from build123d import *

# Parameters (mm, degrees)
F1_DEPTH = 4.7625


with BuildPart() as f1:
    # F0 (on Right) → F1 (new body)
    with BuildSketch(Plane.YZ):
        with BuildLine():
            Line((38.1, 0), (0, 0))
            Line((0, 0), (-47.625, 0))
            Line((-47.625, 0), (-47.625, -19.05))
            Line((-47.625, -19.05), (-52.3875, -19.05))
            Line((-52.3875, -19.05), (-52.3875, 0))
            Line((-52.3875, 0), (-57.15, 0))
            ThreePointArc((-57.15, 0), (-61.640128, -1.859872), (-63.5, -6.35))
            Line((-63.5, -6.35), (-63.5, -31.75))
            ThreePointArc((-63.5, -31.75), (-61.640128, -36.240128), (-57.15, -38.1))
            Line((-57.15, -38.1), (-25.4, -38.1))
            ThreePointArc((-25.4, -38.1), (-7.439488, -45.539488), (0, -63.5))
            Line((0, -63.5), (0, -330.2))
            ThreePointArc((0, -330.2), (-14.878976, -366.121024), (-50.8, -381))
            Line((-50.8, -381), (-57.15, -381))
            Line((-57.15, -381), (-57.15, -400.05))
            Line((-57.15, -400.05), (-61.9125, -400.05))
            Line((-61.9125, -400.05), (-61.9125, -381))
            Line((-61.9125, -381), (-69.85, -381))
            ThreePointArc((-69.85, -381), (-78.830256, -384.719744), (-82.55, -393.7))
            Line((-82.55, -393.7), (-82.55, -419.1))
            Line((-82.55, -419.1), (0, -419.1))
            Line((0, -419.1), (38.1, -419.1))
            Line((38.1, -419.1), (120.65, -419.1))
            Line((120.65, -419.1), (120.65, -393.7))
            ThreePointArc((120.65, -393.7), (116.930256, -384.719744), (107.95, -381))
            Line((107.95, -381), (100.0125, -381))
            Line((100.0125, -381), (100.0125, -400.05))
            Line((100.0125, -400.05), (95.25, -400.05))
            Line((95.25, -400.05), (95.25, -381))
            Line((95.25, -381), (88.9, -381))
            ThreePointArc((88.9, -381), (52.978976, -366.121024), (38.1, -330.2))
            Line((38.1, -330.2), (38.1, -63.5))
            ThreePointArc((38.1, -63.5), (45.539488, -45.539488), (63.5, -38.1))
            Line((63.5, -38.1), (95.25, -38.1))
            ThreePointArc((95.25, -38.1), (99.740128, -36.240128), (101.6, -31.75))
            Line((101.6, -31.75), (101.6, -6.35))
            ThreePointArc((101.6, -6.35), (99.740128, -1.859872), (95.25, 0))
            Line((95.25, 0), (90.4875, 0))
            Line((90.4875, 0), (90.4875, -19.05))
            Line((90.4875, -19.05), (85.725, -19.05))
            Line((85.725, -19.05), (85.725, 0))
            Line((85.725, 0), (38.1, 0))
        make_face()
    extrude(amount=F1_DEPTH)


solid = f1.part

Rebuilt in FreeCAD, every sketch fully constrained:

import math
import FreeCAD as App
import Part
import Sketcher
from FreeCAD import Vector
Q = App.Units.Quantity

doc = App.newDocument("Part")
body = doc.addObject("PartDesign::Body", "Body")

sketch1 = body.newObject("Sketcher::SketchObject", "Sketch")
sketch1.AttachmentSupport = (doc.getObject("YZ_Plane"), [""])
sketch1.MapMode = "FlatFace"
sketch1.addGeometry(Part.LineSegment(Vector(-47.625, 0, 0), Vector(-47.625, -19.05, 0)), False)
sketch1.addGeometry(Part.LineSegment(Vector(-47.625, -19.05, 0), Vector(-52.3875, -19.05, 0)), False)
sketch1.addGeometry(Part.LineSegment(Vector(-52.3875, -19.05, 0), Vector(-52.3875, 0, 0)), False)
sketch1.addGeometry(Part.LineSegment(Vector(-52.3875, 0, 0), Vector(-57.15, 0, 0)), False)
sketch1.addGeometry(Part.ArcOfCircle(Part.Circle(Vector(-57.15, -6.35, 0), Vector(0, 0, 1), 6.35), math.radians(90.000002), math.radians(179.999998)), False)
sketch1.addGeometry(Part.LineSegment(Vector(-63.5, -6.35, 0), Vector(-63.5, -31.75, 0)), False)
sketch1.addGeometry(Part.ArcOfCircle(Part.Circle(Vector(-57.15, -31.75, 0), Vector(0, 0, 1), 6.35), math.radians(-179.999998), math.radians(-90.000002)), False)
sketch1.addGeometry(Part.LineSegment(Vector(-57.15, -38.1, 0), Vector(-25.4, -38.1, 0)), False)
sketch1.addGeometry(Part.ArcOfCircle(Part.Circle(Vector(-25.400001, -63.500001, 0), Vector(0, 0, 1), 25.400001), math.radians(0.000002), math.radians(89.999998)), False)
sketch1.addGeometry(Part.LineSegment(Vector(0, -63.5, 0), Vector(0, -330.2, 0)), False)
sketch1.addGeometry(Part.ArcOfCircle(Part.Circle(Vector(-50.800002, -330.199998, 0), Vector(0, 0, 1), 50.800002), math.radians(-89.999998), math.radians(-0.000002)), False)
sketch1.addGeometry(Part.LineSegment(Vector(-50.8, -381, 0), Vector(-57.15, -381, 0)), False)
sketch1.addGeometry(Part.LineSegment(Vector(-57.15, -381, 0), Vector(-57.15, -400.05, 0)), False)
sketch1.addGeometry(Part.LineSegment(Vector(-57.15, -400.05, 0), Vector(-61.9125, -400.05, 0)), False)
sketch1.addGeometry(Part.LineSegment(Vector(-61.9125, -400.05, 0), Vector(-61.9125, -381, 0)), False)
sketch1.addGeometry(Part.LineSegment(Vector(-61.9125, -381, 0), Vector(-69.85, -381, 0)), False)
sketch1.addGeometry(Part.ArcOfCircle(Part.Circle(Vector(-69.85, -393.7, 0), Vector(0, 0, 1), 12.7), math.radians(90.000002), math.radians(179.999998)), False)
sketch1.addGeometry(Part.LineSegment(Vector(-82.55, -393.7, 0), Vector(-82.55, -419.1, 0)), False)
sketch1.addGeometry(Part.LineSegment(Vector(-82.55, -419.1, 0), Vector(120.65, -419.1, 0)), False)
sketch1.addGeometry(Part.LineSegment(Vector(120.65, -419.1, 0), Vector(120.65, -393.7, 0)), False)
sketch1.addGeometry(Part.ArcOfCircle(Part.Circle(Vector(107.95, -393.7, 0), Vector(0, 0, 1), 12.7), math.radians(0.000002), math.radians(89.999998)), False)
sketch1.addGeometry(Part.LineSegment(Vector(107.95, -381, 0), Vector(100.0125, -381, 0)), False)
sketch1.addGeometry(Part.LineSegment(Vector(100.0125, -381, 0), Vector(100.0125, -400.05, 0)), False)
sketch1.addGeometry(Part.LineSegment(Vector(100.0125, -400.05, 0), Vector(95.25, -400.05, 0)), False)
sketch1.addGeometry(Part.LineSegment(Vector(95.25, -400.05, 0), Vector(95.25, -381, 0)), False)
sketch1.addGeometry(Part.LineSegment(Vector(95.25, -381, 0), Vector(88.9, -381, 0)), False)
sketch1.addGeometry(Part.ArcOfCircle(Part.Circle(Vector(88.900002, -330.199998, 0), Vector(0, 0, 1), 50.800002), math.radians(-179.999998), math.radians(-90.000002)), False)
sketch1.addGeometry(Part.LineSegment(Vector(38.1, -330.2, 0), Vector(38.1, -63.5, 0)), False)
sketch1.addGeometry(Part.ArcOfCircle(Part.Circle(Vector(63.500001, -63.500001, 0), Vector(0, 0, 1), 25.400001), math.radians(90.000002), math.radians(179.999998)), False)
sketch1.addGeometry(Part.LineSegment(Vector(63.5, -38.1, 0), Vector(95.25, -38.1, 0)), False)
sketch1.addGeometry(Part.ArcOfCircle(Part.Circle(Vector(95.25, -31.75, 0), Vector(0, 0, 1), 6.35), math.radians(-89.999998), math.radians(-0.000002)), False)
sketch1.addGeometry(Part.LineSegment(Vector(101.6, -31.75, 0), Vector(101.6, -6.35, 0)), False)
sketch1.addGeometry(Part.ArcOfCircle(Part.Circle(Vector(95.25, -6.35, 0), Vector(0, 0, 1), 6.35), math.radians(0.000002), math.radians(89.999998)), False)
sketch1.addGeometry(Part.LineSegment(Vector(95.25, 0, 0), Vector(90.4875, 0, 0)), False)
sketch1.addGeometry(Part.LineSegment(Vector(90.4875, 0, 0), Vector(90.4875, -19.05, 0)), False)
sketch1.addGeometry(Part.LineSegment(Vector(90.4875, -19.05, 0), Vector(85.725, -19.05, 0)), False)
sketch1.addGeometry(Part.LineSegment(Vector(85.725, -19.05, 0), Vector(85.725, 0, 0)), False)
sketch1.addGeometry(Part.LineSegment(Vector(85.725, 0, 0), Vector(-47.625, 0, 0)), False)
sketch1.addConstraint(Sketcher.Constraint("Coincident", 0, 2, 1, 1))
sketch1.addConstraint(Sketcher.Constraint("Coincident", 1, 2, 2, 1))
sketch1.addConstraint(Sketcher.Constraint("Coincident", 2, 2, 3, 1))
sketch1.addConstraint(Sketcher.Constraint("Tangent", 3, 2, 4, 1))
sketch1.addConstraint(Sketcher.Constraint("Tangent", 4, 2, 5, 1))
sketch1.addConstraint(Sketcher.Constraint("Tangent", 5, 2, 6, 1))
sketch1.addConstraint(Sketcher.Constraint("Tangent", 6, 2, 7, 1))
sketch1.addConstraint(Sketcher.Constraint("Tangent", 7, 2, 8, 2))
sketch1.addConstraint(Sketcher.Constraint("Tangent", 8, 1, 9, 1))
sketch1.addConstraint(Sketcher.Constraint("Tangent", 9, 2, 10, 2))
sketch1.addConstraint(Sketcher.Constraint("Tangent", 10, 1, 11, 1))
sketch1.addConstraint(Sketcher.Constraint("Coincident", 11, 2, 12, 1))
sketch1.addConstraint(Sketcher.Constraint("Coincident", 12, 2, 13, 1))
sketch1.addConstraint(Sketcher.Constraint("Coincident", 13, 2, 14, 1))
sketch1.addConstraint(Sketcher.Constraint("Coincident", 14, 2, 15, 1))
sketch1.addConstraint(Sketcher.Constraint("Tangent", 15, 2, 16, 1))
sketch1.addConstraint(Sketcher.Constraint("Tangent", 16, 2, 17, 1))
sketch1.addConstraint(Sketcher.Constraint("Coincident", 17, 2, 18, 1))
sketch1.addConstraint(Sketcher.Constraint("Coincident", 18, 2, 19, 1))
sketch1.addConstraint(Sketcher.Constraint("Tangent", 19, 2, 20, 1))
sketch1.addConstraint(Sketcher.Constraint("Tangent", 20, 2, 21, 1))
sketch1.addConstraint(Sketcher.Constraint("Coincident", 21, 2, 22, 1))
sketch1.addConstraint(Sketcher.Constraint("Coincident", 22, 2, 23, 1))
sketch1.addConstraint(Sketcher.Constraint("Coincident", 23, 2, 24, 1))
sketch1.addConstraint(Sketcher.Constraint("Coincident", 24, 2, 25, 1))
sketch1.addConstraint(Sketcher.Constraint("Tangent", 25, 2, 26, 2))
sketch1.addConstraint(Sketcher.Constraint("Tangent", 26, 1, 27, 1))
sketch1.addConstraint(Sketcher.Constraint("Tangent", 27, 2, 28, 2))
sketch1.addConstraint(Sketcher.Constraint("Tangent", 28, 1, 29, 1))
sketch1.addConstraint(Sketcher.Constraint("Tangent", 29, 2, 30, 1))
sketch1.addConstraint(Sketcher.Constraint("Tangent", 30, 2, 31, 1))
sketch1.addConstraint(Sketcher.Constraint("Tangent", 31, 2, 32, 1))
sketch1.addConstraint(Sketcher.Constraint("Tangent", 32, 2, 33, 1))
sketch1.addConstraint(Sketcher.Constraint("Coincident", 33, 2, 34, 1))
sketch1.addConstraint(Sketcher.Constraint("Coincident", 34, 2, 35, 1))
sketch1.addConstraint(Sketcher.Constraint("Coincident", 35, 2, 36, 1))
sketch1.addConstraint(Sketcher.Constraint("Coincident", 36, 2, 37, 1))
sketch1.addConstraint(Sketcher.Constraint("Coincident", 37, 2, 0, 1))
sketch1.addConstraint(Sketcher.Constraint("Vertical", 0))
sketch1.addConstraint(Sketcher.Constraint("Horizontal", 1))
sketch1.addConstraint(Sketcher.Constraint("Vertical", 2))
sketch1.addConstraint(Sketcher.Constraint("Horizontal", 3))
sketch1.addConstraint(Sketcher.Constraint("Vertical", 5))
sketch1.addConstraint(Sketcher.Constraint("Horizontal", 7))
sketch1.addConstraint(Sketcher.Constraint("Vertical", 9))
sketch1.addConstraint(Sketcher.Constraint("Horizontal", 11))
sketch1.addConstraint(Sketcher.Constraint("Vertical", 12))
sketch1.addConstraint(Sketcher.Constraint("Horizontal", 13))
sketch1.addConstraint(Sketcher.Constraint("Vertical", 14))
sketch1.addConstraint(Sketcher.Constraint("Horizontal", 15))
sketch1.addConstraint(Sketcher.Constraint("Vertical", 17))
sketch1.addConstraint(Sketcher.Constraint("Horizontal", 18))
sketch1.addConstraint(Sketcher.Constraint("Vertical", 19))
sketch1.addConstraint(Sketcher.Constraint("Horizontal", 21))
sketch1.addConstraint(Sketcher.Constraint("Vertical", 22))
sketch1.addConstraint(Sketcher.Constraint("Horizontal", 23))
sketch1.addConstraint(Sketcher.Constraint("Vertical", 24))
sketch1.addConstraint(Sketcher.Constraint("Horizontal", 25))
sketch1.addConstraint(Sketcher.Constraint("Vertical", 27))
sketch1.addConstraint(Sketcher.Constraint("Horizontal", 29))
sketch1.addConstraint(Sketcher.Constraint("Vertical", 31))
sketch1.addConstraint(Sketcher.Constraint("Horizontal", 33))
sketch1.addConstraint(Sketcher.Constraint("Vertical", 34))
sketch1.addConstraint(Sketcher.Constraint("Horizontal", 35))
sketch1.addConstraint(Sketcher.Constraint("Vertical", 36))
sketch1.addConstraint(Sketcher.Constraint("Horizontal", 37))
sketch1.addConstraint(Sketcher.Constraint("Equal", 4, 6))
sketch1.addConstraint(Sketcher.Constraint("Equal", 16, 20))
sketch1.addConstraint(Sketcher.Constraint("Equal", 10, 26))
sketch1.addConstraint(Sketcher.Constraint("Equal", 8, 28))
sketch1.addConstraint(Sketcher.Constraint("Equal", 6, 30))
sketch1.addConstraint(Sketcher.Constraint("Equal", 30, 32))
sketch1.addConstraint(Sketcher.Constraint("PointOnObject", 2, 2, -1))
sketch1.addConstraint(Sketcher.Constraint("PointOnObject", 8, 1, -2))
sketch1.addConstraint(Sketcher.Constraint("PointOnObject", 32, 2, -1))
sketch1.addConstraint(Sketcher.Constraint("PointOnObject", 36, 2, -1))
sketch1.addConstraint(Sketcher.Constraint("Horizontal", 16, 3, 20, 3))
sketch1.addConstraint(Sketcher.Constraint("Horizontal", 10, 3, 26, 3))
sketch1.addConstraint(Sketcher.Constraint("Horizontal", 8, 3, 28, 3))
sketch1.addConstraint(Sketcher.Constraint("Horizontal", 11, 2, 14, 2))
sketch1.addConstraint(Sketcher.Constraint("Horizontal", 13, 2, 22, 2))
sketch1.addConstraint(Sketcher.Constraint("Horizontal", 1, 2, 34, 2))
sketch1.addConstraint(Sketcher.Constraint("Vertical", 6, 2, 11, 2))
sketch1.addConstraint(Sketcher.Constraint("Vertical", 32, 3, 23, 2))
sketch1.addConstraint(Sketcher.Constraint("Equal", 1, 3))
sketch1.addConstraint(Sketcher.Constraint("Equal", 3, 13))
sketch1.addConstraint(Sketcher.Constraint("Equal", 15, 21))
sketch1.addConstraint(Sketcher.Constraint("Equal", 13, 23))
sketch1.addConstraint(Sketcher.Constraint("Equal", 11, 25))
sketch1.addConstraint(Sketcher.Constraint("Equal", 23, 33))
sketch1.addConstraint(Sketcher.Constraint("Equal", 33, 35))
sketch1.addConstraint(Sketcher.Constraint("Equal", 2, 12))
sketch1.addConstraint(Sketcher.Constraint("Equal", 5, 17))
sketch1.addConstraint(Sketcher.Constraint("Radius", 8, Q("1 in")))
sketch1.addConstraint(Sketcher.Constraint("Radius", 10, Q("2.0000001 in")))
sketch1.addConstraint(Sketcher.Constraint("Radius", 16, Q("0.5 in")))
sketch1.addConstraint(Sketcher.Constraint("DistanceX", 18, 1, 18, 2, Q("8 in")))
sketch1.addConstraint(Sketcher.Constraint("DistanceY", 5, 2, 5, 1, Q("1 in")))
sketch1.addConstraint(Sketcher.Constraint("Radius", 4, Q("0.25 in")))
sketch1.addConstraint(Sketcher.Constraint("DistanceY", 9, 2, 9, 1, Q("10.5 in")))
sketch1.addConstraint(Sketcher.Constraint("DistanceX", -1, 1, 30, 2, Q("4 in")))
sketch1.addConstraint(Sketcher.Constraint("DistanceX", 6, 3, 30, 3, Q("6 in")))
sketch1.addConstraint(Sketcher.Constraint("DistanceX", 37, 2, 37, 1, Q("5.25 in")))
sketch1.addConstraint(Sketcher.Constraint("DistanceY", 0, 2, 0, 1, Q("0.75 in")))
pad1 = body.newObject("PartDesign::Pad", "Pad")
pad1.Profile = sketch1
pad1.Length = Q("0.1875 in")

doc.recompute()
